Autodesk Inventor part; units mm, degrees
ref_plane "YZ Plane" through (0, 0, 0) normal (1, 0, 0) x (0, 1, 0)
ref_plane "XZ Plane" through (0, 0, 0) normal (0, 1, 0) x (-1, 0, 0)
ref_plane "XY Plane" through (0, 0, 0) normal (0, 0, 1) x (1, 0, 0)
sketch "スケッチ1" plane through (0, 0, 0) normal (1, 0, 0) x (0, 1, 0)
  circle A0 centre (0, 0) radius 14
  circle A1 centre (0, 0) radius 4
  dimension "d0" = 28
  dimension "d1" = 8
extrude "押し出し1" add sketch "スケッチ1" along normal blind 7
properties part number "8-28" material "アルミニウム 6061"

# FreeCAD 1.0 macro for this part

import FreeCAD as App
import Part
import Sketcher

V = App.Vector
Q = App.Units.Quantity

doc = App.newDocument("Part")
params = doc.addObject("Spreadsheet::Sheet", "Params")
for row, (alias, value) in enumerate([
    ("sketch1_diameter", "28 mm"),
    ("sketch1_diameter2", "8 mm"),
    ("pad1_length", "7 mm"),
], start=1):
    params.set(f"A{row}", alias)
    params.set(f"B{row}", "=" + value)
    params.setAlias(f"B{row}", alias)

body = doc.addObject("PartDesign::Body", "Body")

sketch1 = body.newObject("Sketcher::SketchObject", "Sketch")
sketch1.AttachmentSupport = (doc.getObject("YZ_Plane"), [""])
sketch1.MapMode = "FlatFace"
sketch1.addGeometry([
    Part.Circle(V(0, 0, 0), V(0, 0, 1), 14),
    Part.Circle(V(0, 0, 0), V(0, 0, 1), 4),
], False)
sketch1.addConstraint([
    Sketcher.Constraint("Coincident", 0, 3, -1, 1),
    Sketcher.Constraint("Coincident", 1, 3, -1, 1),
    Sketcher.Constraint("Diameter", 0, Q("28 mm")),
    Sketcher.Constraint("Diameter", 1, Q("8 mm")),
])
sketch1.setExpression("Constraints[2]", "Params.sketch1_diameter")
sketch1.setExpression("Constraints[3]", "Params.sketch1_diameter2")
pad1 = body.newObject("PartDesign::Pad", "Pad")
pad1.Profile = sketch1
pad1.setExpression("Length", "Params.pad1_length")

doc.recompute()
